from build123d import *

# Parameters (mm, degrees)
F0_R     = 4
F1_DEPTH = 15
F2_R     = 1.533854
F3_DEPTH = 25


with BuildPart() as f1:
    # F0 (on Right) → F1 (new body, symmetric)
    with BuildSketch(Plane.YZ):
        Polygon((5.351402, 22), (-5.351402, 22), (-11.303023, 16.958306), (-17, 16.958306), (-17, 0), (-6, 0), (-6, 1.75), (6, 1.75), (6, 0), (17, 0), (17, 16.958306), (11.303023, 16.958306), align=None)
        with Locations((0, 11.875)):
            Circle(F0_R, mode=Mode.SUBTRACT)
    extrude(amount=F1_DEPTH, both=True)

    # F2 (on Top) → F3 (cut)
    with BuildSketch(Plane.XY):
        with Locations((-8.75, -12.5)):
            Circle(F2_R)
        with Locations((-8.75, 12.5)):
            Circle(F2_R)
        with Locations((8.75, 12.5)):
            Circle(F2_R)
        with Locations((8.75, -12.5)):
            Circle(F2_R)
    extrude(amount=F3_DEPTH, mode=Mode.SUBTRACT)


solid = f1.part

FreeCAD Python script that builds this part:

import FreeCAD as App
import Part
import Sketcher


def add_polygon(sketch, points):
    """Adds a closed chain of lines whose ends are joined by coincident constraints."""
    first, n = sketch.GeometryCount, len(points)
    for a, b in zip(points, points[1:] + points[:1]):
        sketch.addGeometry(Part.LineSegment(App.Vector(*a, 0), App.Vector(*b, 0)), False)
    for i in range(n):
        sketch.addConstraint(Sketcher.Constraint("Coincident", first + i, 2, first + (i + 1) % n, 1))

doc = App.newDocument("Part")
params = doc.addObject("Spreadsheet::Sheet", "Params")
for row, (alias, value) in enumerate([
    ("sketch1_diameter", "8 mm"),
    ("sketch1_width", "11 mm"),
    ("sketch1_width2", "12 mm"),
    ("sketch1_height", "1.75 mm"),
    ("pad1_length", "30 mm"),
    ("pocket1_length", "25 mm"),
], start=1):
    params.set(f"A{row}", alias)
    params.set(f"B{row}", "=" + value)
    params.setAlias(f"B{row}", alias)

body = doc.addObject("PartDesign::Body", "Body")

sketch1 = doc.addObject("Sketcher::SketchObject", "Sketch")
body.addObject(sketch1)
sketch1.AttachmentSupport = (doc.YZ_Plane, [""])
sketch1.MapMode = "FlatFace"
add_polygon(sketch1, [(5.4, 22), (-5.4, 22), (-11.3, 17), (-17, 17), (-17, 0), (-6, 0), (-6, 1.8), (6, 1.8), (6, 0), (17, 0), (17, 17), (11.3, 17)])
sketch1.addGeometry(Part.Circle(App.Vector(0, 11.9, 0), App.Vector(0, 0, 1), 4), False)
sketch1.addConstraint(Sketcher.Constraint("Horizontal", 0))
sketch1.addConstraint(Sketcher.Constraint("Horizontal", 2))
sketch1.addConstraint(Sketcher.Constraint("Vertical", 3))
sketch1.addConstraint(Sketcher.Constraint("Horizontal", 4))
sketch1.addConstraint(Sketcher.Constraint("Vertical", 5))
sketch1.addConstraint(Sketcher.Constraint("Horizontal", 6))
sketch1.addConstraint(Sketcher.Constraint("Vertical", 7))
sketch1.addConstraint(Sketcher.Constraint("Horizontal", 8))
sketch1.addConstraint(Sketcher.Constraint("Vertical", 9))
sketch1.addConstraint(Sketcher.Constraint("Horizontal", 10))
sketch1.addConstraint(Sketcher.Constraint("Symmetric", 4, 2, 7, 2, -1, 1))
sketch1.addConstraint(Sketcher.Constraint("Symmetric", 3, 2, 8, 2, -2))
sketch1.addConstraint(Sketcher.Constraint("Symmetric", 1, 2, 10, 2, -2))
sketch1.addConstraint(Sketcher.Constraint("PointOnObject", 12, 3, -2))
sketch1.addConstraint(Sketcher.Constraint("Equal", 1, 11))
sketch1.addConstraint(Sketcher.Constraint("Diameter", 12, 8.0))
sketch1.addConstraint(Sketcher.Constraint("DistanceX", 4, 1, 4, 2, 11.0))
sketch1.addConstraint(Sketcher.Constraint("DistanceX", 6, 1, 6, 2, 12.0))
sketch1.addConstraint(Sketcher.Constraint("DistanceY", -1, 1, 0, 2, 22.0))
sketch1.addConstraint(Sketcher.Constraint("DistanceY", 5, 1, 5, 2, 1.75))
sketch1.addConstraint(Sketcher.Constraint("DistanceY", -1, 1, 12, 3, 11.875))
sketch1.addConstraint(Sketcher.Constraint("DistanceX", 0, 2, 9, 2, 22.351402))
sketch1.addConstraint(Sketcher.Constraint("Distance", 1, 7.80003))
sketch1.addConstraint(Sketcher.Constraint("DistanceX", 2, 2, 2, 1, 5.696977))
sketch1.setExpression("Constraints[27]", "Params.sketch1_diameter")
sketch1.setExpression("Constraints[28]", "Params.sketch1_width")
sketch1.setExpression("Constraints[29]", "Params.sketch1_width2")
sketch1.setExpression("Constraints[31]", "Params.sketch1_height")
pad1 = doc.addObject("PartDesign::Pad", "Pad")
body.addObject(pad1)
pad1.Profile = sketch1
pad1.setExpression("Length", "Params.pad1_length")
pad1.Midplane = True

sketch2 = doc.addObject("Sketcher::SketchObject", "Sketch001")
body.addObject(sketch2)
sketch2.AttachmentSupport = (doc.XY_Plane, [""])
sketch2.MapMode = "FlatFace"
sketch2.addGeometry(Part.Circle(App.Vector(-8.8, -12.5, 0), App.Vector(0, 0, 1), 1.5), False)
sketch2.addGeometry(Part.Circle(App.Vector(-8.8, 12.5, 0), App.Vector(0, 0, 1), 1.5), False)
sketch2.addGeometry(Part.Circle(App.Vector(8.8, 12.5, 0), App.Vector(0, 0, 1), 1.5), False)
sketch2.addGeometry(Part.Circle(App.Vector(8.8, -12.5, 0), App.Vector(0, 0, 1), 1.5), False)
sketch2.addConstraint(Sketcher.Constraint("Equal", 0, 1))
sketch2.addConstraint(Sketcher.Constraint("Equal", 1, 2))
sketch2.addConstraint(Sketcher.Constraint("Equal", 2, 3))
sketch2.addConstraint(Sketcher.Constraint("Symmetric", 0, 3, 2, 3, -1, 1))
sketch2.addConstraint(Sketcher.Constraint("Symmetric", 1, 3, 3, 3, -1, 1))
sketch2.addConstraint(Sketcher.Constraint("Symmetric", 1, 3, 2, 3, -2))
sketch2.addConstraint(Sketcher.Constraint("DistanceY", 0, 3, 1, 3, 25.0))
sketch2.addConstraint(Sketcher.Constraint("DistanceX", 1, 3, 2, 3, 17.5))
sketch2.addConstraint(Sketcher.Constraint("Diameter", 0, 3.067708))
pocket1 = doc.addObject("PartDesign::Pocket", "Pocket")
body.addObject(pocket1)
pocket1.Profile = sketch2
pocket1.setExpression("Length", "Params.pocket1_length")
pocket1.Reversed = True

doc.recompute()
